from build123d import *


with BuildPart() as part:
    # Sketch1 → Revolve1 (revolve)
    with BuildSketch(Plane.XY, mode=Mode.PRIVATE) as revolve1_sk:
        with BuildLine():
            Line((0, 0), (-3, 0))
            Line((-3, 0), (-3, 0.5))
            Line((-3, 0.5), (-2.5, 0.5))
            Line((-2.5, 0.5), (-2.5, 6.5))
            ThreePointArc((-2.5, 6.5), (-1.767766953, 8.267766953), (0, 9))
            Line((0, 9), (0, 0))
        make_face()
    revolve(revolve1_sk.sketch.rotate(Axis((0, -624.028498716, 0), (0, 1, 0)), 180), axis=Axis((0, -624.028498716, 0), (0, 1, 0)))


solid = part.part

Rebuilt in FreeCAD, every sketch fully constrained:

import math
import FreeCAD as App
import Part
import Sketcher
Q = App.Units.Quantity

doc = App.newDocument("Part")
params = doc.addObject("Spreadsheet::Sheet", "Params")
for row, (alias, value) in enumerate([
    ("sketch1_radius", "2.5 mm"),
    ("sketch1_width", "3 mm"),
    ("sketch1_height", "9 mm"),
    ("revolution_angle", "360 deg"),
], start=1):
    params.set(f"A{row}", alias)
    params.set(f"B{row}", "=" + value)
    params.setAlias(f"B{row}", alias)

body = doc.addObject("PartDesign::Body", "Body")

sketch1 = doc.addObject("Sketcher::SketchObject", "Sketch")
body.addObject(sketch1)
sketch1.AttachmentSupport = (doc.XY_Plane, [""])
sketch1.MapMode = "FlatFace"
sketch1.addGeometry([
    Part.LineSegment(App.Vector(-3, 0, 0), App.Vector(0, 0, 0)),
    Part.LineSegment(App.Vector(0, 0, 0), App.Vector(0, 9, 0)),
    Part.ArcOfCircle(Part.Circle(App.Vector(0, 6.5, 0), App.Vector(0, 0, 1), 2.5), math.radians(90), math.radians(180)),
    Part.LineSegment(App.Vector(-2.5, 6.5, 0), App.Vector(-2.5, 0.5, 0)),
    Part.LineSegment(App.Vector(-2.5, 0.5, 0), App.Vector(-3, 0.5, 0)),
    Part.LineSegment(App.Vector(-3, 0.5, 0), App.Vector(-3, 0, 0)),
], False)
sketch1.addConstraint([
    Sketcher.Constraint("Coincident", 0, 2, 1, 1),
    Sketcher.Constraint("Coincident", 1, 2, 2, 1),
    Sketcher.Constraint("Tangent", 2, 2, 3, 1),
    Sketcher.Constraint("Coincident", 3, 2, 4, 1),
    Sketcher.Constraint("Coincident", 4, 2, 5, 1),
    Sketcher.Constraint("Coincident", 5, 2, 0, 1),
    Sketcher.Constraint("Horizontal", 0),
    Sketcher.Constraint("Vertical", 1),
    Sketcher.Constraint("Vertical", 3),
    Sketcher.Constraint("Horizontal", 4),
    Sketcher.Constraint("Vertical", 5),
    Sketcher.Constraint("Coincident", 0, 2, -1, 1),
    Sketcher.Constraint("PointOnObject", 2, 3, -2),
    Sketcher.Constraint("Equal", 4, 5),
    Sketcher.Constraint("Radius", 2, Q("2.5 mm")),
    Sketcher.Constraint("DistanceX", 0, 1, 0, 2, Q("3 mm")),
    Sketcher.Constraint("DistanceY", 1, 1, 1, 2, Q("9 mm")),
])
sketch1.setExpression("Constraints[14]", "Params.sketch1_radius")
sketch1.setExpression("Constraints[15]", "Params.sketch1_width")
sketch1.setExpression("Constraints[16]", "Params.sketch1_height")
revolution = doc.addObject("PartDesign::Revolution", "Revolution")
body.addObject(revolution)
revolution.Profile = sketch1
revolution.ReferenceAxis = (sketch1, ["V_Axis"])
revolution.setExpression("Angle", "Params.revolution_angle")

doc.recompute()
